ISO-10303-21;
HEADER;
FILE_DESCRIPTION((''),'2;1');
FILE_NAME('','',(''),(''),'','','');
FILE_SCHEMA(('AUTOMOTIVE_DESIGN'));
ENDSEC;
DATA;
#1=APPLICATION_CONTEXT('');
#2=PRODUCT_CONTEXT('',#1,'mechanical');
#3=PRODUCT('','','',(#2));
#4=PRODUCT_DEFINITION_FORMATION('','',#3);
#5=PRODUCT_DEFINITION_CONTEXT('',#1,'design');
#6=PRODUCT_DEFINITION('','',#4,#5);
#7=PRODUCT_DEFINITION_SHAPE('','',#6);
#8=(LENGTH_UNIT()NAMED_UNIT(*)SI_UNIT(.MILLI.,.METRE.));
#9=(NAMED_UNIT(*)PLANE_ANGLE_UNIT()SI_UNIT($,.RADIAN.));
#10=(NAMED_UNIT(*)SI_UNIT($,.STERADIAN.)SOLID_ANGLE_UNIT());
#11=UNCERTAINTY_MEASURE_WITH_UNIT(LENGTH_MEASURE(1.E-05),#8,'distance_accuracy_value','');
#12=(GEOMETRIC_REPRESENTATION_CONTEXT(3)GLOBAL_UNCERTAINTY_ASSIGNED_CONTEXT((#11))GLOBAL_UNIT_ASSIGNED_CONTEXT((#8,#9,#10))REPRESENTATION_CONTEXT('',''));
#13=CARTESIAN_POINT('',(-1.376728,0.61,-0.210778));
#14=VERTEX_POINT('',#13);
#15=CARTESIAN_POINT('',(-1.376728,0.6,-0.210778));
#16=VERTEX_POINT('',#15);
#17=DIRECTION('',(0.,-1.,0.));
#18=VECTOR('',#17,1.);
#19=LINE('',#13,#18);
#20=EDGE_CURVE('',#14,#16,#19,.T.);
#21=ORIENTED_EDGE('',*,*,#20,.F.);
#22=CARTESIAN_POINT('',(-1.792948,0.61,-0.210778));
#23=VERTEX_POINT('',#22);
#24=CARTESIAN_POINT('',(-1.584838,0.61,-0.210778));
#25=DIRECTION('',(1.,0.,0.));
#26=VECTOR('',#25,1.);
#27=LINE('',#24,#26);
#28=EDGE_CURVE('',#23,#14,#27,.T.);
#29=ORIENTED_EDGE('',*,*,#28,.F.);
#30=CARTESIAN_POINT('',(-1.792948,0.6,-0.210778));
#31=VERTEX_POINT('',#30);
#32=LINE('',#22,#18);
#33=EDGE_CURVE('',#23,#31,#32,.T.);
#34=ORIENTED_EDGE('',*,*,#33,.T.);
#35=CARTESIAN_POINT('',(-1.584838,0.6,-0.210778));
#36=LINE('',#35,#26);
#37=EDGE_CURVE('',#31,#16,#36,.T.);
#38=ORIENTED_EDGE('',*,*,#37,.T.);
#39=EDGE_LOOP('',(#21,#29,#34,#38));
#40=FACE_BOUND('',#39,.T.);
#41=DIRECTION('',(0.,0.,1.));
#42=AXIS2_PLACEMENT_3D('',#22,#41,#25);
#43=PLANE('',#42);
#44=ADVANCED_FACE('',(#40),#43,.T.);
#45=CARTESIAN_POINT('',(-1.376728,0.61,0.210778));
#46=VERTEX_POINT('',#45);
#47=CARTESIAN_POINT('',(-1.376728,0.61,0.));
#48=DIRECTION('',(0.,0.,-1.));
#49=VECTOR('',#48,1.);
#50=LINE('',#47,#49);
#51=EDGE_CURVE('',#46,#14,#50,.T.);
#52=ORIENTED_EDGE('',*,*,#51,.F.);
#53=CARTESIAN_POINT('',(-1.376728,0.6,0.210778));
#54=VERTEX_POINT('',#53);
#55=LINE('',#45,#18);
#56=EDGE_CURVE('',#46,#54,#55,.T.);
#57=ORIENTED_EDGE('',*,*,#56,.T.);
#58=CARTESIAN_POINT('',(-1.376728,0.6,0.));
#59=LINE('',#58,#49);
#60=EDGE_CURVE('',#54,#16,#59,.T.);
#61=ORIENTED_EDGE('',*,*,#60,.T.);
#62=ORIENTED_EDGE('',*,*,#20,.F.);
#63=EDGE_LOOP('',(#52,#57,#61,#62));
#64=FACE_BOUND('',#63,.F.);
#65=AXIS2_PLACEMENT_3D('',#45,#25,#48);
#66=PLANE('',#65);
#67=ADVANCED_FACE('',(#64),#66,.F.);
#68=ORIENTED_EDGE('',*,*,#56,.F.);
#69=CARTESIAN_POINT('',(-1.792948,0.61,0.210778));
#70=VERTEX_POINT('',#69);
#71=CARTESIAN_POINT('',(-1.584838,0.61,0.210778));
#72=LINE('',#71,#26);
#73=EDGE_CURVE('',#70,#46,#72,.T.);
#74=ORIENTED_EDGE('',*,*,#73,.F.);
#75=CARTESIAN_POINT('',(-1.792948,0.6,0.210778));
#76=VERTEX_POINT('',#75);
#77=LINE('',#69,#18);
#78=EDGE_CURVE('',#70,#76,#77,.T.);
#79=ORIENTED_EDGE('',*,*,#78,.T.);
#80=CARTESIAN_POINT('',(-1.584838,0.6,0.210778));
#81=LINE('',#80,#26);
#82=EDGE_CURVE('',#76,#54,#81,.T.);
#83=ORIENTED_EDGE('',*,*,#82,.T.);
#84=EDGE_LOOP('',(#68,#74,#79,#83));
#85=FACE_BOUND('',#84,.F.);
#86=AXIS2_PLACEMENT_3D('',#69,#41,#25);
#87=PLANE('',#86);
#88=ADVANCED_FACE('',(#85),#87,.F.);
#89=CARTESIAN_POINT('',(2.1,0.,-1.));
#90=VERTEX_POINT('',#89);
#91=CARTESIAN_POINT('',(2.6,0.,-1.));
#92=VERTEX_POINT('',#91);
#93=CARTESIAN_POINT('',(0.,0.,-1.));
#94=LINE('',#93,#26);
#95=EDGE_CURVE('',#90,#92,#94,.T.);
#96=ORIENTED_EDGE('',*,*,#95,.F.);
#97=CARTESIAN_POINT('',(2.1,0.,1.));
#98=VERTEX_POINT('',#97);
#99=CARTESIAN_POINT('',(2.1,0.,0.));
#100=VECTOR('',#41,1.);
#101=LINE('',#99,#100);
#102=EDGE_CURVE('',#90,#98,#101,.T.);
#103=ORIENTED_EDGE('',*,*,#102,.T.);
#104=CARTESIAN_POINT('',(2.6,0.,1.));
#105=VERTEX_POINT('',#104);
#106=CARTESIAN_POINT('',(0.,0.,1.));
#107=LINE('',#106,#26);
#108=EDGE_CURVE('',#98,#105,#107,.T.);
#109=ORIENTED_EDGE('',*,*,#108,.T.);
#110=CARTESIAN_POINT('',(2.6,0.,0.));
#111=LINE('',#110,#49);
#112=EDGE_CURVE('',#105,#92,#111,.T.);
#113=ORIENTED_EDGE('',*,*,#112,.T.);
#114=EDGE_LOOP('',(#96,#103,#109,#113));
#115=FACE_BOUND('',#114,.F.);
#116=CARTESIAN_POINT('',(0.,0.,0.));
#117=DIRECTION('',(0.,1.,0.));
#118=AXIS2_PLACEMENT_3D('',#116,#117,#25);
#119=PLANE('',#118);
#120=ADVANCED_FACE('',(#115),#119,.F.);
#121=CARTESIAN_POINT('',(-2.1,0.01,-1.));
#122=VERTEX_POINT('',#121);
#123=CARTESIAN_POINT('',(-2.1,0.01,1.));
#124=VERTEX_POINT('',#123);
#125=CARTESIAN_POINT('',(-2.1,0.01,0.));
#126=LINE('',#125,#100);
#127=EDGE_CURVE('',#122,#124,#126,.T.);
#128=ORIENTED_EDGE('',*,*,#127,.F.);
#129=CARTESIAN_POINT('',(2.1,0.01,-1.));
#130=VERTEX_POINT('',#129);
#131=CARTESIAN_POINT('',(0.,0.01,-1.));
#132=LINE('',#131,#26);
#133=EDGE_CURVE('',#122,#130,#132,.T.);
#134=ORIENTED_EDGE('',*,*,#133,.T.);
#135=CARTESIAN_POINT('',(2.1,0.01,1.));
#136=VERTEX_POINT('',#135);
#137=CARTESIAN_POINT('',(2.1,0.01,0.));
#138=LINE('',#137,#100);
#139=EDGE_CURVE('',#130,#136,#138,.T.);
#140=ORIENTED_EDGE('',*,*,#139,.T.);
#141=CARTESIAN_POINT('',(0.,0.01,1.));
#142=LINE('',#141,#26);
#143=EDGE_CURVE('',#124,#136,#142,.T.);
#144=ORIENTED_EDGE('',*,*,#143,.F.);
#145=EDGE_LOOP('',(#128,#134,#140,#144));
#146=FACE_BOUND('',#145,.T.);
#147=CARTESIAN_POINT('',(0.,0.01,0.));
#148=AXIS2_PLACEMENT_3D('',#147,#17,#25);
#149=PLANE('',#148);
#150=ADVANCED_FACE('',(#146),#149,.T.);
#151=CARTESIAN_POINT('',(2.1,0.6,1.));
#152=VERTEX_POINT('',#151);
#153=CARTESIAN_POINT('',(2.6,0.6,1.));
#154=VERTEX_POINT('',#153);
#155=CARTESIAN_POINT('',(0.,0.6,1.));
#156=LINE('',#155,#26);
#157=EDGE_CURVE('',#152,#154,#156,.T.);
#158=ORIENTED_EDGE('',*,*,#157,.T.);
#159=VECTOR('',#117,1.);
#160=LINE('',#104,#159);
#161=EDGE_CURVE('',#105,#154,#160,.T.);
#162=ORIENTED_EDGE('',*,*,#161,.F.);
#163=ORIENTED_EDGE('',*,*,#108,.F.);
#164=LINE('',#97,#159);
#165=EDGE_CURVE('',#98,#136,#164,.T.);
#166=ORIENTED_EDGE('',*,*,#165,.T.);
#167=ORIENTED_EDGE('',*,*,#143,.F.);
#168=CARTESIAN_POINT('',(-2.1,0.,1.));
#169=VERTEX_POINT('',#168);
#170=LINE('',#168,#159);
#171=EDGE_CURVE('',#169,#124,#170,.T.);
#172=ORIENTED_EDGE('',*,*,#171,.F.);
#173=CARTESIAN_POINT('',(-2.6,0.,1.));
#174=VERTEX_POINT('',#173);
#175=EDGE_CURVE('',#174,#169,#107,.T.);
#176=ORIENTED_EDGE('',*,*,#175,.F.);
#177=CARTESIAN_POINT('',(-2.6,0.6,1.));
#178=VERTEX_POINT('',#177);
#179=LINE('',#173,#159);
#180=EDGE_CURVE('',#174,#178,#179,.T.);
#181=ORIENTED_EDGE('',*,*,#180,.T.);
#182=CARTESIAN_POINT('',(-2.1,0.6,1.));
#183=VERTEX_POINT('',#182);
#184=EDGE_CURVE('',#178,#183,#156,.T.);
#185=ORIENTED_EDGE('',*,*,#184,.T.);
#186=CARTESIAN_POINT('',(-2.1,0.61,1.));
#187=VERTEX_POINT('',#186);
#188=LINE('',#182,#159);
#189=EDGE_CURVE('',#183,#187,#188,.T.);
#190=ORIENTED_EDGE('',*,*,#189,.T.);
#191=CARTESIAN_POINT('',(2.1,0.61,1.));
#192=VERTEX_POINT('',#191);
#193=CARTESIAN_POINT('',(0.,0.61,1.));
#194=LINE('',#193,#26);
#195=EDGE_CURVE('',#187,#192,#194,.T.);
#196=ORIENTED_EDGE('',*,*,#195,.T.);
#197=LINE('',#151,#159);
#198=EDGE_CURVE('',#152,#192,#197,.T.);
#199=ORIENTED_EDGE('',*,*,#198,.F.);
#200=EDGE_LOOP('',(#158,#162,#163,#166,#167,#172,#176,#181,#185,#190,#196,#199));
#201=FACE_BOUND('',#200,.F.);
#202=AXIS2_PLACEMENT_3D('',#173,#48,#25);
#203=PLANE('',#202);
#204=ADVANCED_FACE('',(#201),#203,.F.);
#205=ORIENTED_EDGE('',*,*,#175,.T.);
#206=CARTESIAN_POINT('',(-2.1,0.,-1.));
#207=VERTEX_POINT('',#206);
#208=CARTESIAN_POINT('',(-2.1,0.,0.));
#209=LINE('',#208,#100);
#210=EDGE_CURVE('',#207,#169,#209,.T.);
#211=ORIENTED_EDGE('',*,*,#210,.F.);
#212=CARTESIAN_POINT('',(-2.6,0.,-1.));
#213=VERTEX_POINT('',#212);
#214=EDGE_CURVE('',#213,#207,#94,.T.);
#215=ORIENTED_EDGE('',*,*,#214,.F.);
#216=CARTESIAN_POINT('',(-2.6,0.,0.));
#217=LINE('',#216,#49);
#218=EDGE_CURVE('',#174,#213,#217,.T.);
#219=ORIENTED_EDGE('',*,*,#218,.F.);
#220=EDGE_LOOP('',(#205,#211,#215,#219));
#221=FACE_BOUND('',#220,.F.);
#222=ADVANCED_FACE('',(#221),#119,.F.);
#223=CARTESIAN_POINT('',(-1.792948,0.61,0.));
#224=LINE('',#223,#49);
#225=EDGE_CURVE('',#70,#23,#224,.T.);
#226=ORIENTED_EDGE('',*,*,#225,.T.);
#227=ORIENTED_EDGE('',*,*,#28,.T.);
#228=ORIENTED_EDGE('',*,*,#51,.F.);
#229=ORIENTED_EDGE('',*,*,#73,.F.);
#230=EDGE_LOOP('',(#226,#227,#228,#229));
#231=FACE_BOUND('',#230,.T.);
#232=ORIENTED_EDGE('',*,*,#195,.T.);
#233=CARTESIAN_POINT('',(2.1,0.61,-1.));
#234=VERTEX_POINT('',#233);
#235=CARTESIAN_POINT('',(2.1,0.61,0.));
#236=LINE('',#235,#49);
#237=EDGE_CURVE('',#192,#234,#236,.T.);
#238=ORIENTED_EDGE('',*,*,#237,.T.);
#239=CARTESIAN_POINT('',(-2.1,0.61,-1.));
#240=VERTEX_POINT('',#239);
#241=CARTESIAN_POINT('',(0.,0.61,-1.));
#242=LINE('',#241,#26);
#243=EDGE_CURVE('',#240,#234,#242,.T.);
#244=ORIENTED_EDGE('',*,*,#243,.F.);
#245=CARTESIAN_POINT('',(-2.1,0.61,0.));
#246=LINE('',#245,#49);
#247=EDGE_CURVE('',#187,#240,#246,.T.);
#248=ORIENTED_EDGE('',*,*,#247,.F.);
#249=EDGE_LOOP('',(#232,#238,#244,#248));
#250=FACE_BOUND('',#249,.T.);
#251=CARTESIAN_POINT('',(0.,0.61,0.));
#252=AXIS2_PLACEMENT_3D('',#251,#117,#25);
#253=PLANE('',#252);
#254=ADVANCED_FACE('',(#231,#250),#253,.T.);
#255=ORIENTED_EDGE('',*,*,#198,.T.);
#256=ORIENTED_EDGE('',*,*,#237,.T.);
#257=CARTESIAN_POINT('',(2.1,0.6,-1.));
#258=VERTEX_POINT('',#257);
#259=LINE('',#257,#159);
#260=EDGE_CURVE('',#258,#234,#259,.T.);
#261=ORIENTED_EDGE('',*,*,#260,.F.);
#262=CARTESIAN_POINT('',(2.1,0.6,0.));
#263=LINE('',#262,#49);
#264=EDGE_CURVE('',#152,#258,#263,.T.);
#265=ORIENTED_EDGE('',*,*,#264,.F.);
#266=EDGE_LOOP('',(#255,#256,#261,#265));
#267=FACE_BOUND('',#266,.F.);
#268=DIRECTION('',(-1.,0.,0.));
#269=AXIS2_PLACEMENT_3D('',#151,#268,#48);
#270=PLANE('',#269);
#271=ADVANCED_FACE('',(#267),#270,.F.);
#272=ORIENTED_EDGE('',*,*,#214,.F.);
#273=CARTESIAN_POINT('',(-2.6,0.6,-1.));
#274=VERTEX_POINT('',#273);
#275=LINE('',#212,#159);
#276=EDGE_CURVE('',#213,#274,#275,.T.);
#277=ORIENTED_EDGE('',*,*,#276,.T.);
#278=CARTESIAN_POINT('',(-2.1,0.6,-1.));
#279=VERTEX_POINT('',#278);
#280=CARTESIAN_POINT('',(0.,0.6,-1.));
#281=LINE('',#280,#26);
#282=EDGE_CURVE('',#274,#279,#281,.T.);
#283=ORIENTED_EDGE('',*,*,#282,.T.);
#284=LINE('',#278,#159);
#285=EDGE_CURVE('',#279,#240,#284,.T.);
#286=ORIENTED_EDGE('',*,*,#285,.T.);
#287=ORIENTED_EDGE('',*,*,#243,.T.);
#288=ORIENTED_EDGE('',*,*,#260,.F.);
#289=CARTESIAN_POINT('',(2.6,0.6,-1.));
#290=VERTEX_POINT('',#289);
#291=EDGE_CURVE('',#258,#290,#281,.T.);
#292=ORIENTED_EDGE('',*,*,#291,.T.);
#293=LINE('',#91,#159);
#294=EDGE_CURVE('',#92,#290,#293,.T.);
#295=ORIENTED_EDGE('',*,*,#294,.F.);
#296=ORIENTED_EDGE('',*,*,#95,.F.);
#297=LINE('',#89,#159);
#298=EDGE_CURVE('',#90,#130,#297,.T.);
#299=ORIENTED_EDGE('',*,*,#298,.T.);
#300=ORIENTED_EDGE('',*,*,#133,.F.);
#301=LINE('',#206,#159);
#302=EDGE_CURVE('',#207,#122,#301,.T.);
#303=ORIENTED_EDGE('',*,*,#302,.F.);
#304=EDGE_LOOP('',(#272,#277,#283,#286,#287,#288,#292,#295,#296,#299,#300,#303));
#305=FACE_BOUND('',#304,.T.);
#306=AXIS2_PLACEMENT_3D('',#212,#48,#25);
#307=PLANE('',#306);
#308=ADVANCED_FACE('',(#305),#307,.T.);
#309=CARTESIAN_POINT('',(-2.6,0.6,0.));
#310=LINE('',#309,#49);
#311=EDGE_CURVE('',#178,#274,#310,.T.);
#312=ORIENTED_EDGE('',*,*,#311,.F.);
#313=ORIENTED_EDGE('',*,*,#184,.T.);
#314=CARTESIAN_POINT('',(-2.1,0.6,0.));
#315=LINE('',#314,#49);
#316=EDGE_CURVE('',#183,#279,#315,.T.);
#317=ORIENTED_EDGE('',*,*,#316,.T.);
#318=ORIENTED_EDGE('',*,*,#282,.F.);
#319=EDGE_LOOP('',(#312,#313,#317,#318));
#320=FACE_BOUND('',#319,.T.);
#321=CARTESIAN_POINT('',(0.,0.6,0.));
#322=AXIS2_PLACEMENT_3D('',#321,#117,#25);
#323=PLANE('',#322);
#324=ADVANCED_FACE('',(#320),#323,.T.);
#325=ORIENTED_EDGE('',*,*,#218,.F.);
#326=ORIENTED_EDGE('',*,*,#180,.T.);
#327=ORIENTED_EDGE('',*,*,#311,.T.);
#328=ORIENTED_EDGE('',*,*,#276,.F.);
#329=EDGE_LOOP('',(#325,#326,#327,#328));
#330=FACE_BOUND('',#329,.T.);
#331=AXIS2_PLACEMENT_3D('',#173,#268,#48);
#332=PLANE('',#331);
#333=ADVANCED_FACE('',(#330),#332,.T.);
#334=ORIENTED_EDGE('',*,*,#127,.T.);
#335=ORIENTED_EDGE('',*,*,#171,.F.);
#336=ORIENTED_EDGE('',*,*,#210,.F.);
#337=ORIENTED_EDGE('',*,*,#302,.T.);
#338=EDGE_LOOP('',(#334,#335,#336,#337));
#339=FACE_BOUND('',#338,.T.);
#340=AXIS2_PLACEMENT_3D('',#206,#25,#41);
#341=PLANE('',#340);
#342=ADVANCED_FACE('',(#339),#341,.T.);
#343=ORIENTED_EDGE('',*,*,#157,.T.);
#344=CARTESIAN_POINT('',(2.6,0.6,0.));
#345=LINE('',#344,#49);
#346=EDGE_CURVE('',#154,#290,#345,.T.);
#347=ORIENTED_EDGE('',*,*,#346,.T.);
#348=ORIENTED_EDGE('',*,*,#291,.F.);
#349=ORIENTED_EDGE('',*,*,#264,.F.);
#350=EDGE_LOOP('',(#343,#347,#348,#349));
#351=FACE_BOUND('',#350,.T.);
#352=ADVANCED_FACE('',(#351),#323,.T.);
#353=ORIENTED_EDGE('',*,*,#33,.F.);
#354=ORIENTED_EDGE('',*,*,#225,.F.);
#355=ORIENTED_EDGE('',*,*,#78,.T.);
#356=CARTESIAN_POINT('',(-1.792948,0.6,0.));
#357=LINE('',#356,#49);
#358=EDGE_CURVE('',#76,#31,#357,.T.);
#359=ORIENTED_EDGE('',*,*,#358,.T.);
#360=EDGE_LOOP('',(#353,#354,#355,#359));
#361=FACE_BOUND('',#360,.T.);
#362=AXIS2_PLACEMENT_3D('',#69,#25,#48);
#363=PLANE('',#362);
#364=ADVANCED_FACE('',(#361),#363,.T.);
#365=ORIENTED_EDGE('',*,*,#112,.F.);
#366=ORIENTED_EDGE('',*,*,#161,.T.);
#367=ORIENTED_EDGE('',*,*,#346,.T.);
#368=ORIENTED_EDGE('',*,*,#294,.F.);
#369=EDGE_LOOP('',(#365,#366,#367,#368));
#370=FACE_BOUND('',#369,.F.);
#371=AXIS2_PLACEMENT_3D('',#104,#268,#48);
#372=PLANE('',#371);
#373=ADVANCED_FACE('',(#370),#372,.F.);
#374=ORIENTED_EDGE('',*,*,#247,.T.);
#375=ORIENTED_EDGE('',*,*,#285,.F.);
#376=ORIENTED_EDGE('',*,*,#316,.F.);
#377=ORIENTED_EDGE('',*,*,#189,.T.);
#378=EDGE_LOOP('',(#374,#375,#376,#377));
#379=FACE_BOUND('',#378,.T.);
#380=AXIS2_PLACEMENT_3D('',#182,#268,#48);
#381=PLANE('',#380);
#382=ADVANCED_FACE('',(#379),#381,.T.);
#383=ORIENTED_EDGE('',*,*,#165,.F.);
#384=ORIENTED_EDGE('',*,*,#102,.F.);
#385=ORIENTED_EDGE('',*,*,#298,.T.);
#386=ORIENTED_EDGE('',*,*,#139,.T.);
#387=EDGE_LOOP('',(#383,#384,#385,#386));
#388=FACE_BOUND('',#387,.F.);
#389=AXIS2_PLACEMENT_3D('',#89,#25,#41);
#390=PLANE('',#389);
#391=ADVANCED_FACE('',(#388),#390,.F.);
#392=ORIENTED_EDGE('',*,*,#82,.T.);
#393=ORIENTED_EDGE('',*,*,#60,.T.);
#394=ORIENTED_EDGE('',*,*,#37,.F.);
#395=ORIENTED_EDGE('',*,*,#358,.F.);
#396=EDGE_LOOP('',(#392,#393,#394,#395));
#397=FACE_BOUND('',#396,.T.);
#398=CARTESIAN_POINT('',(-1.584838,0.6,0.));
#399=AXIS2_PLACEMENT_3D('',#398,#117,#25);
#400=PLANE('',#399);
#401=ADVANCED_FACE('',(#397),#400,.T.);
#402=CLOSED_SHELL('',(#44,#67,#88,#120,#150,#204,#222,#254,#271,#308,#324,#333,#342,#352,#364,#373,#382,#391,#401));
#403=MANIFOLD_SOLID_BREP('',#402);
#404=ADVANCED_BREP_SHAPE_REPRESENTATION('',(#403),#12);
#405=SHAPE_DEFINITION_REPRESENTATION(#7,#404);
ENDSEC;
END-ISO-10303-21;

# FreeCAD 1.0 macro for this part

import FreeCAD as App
import Part
import Sketcher
Q = App.Units.Quantity

doc = App.newDocument("Part")
body = doc.addObject("PartDesign::Body", "Body")

# Sketch on XZ plane
sketch1 = body.newObject("Sketcher::SketchObject", "Sketch")
sketch1.AttachmentSupport = (doc.getObject("XZ_Plane"), [""])
sketch1.MapMode = "FlatFace"
sketch1.addGeometry([
    Part.LineSegment(App.Vector(-2.6, -1, 0), App.Vector(-2.6, 1, 0)),
    Part.LineSegment(App.Vector(-2.6, 1, 0), App.Vector(2.6, 1, 0)),
    Part.LineSegment(App.Vector(2.6, 1, 0), App.Vector(2.6, -1, 0)),
    Part.LineSegment(App.Vector(2.6, -1, 0), App.Vector(-2.6, -1, 0)),
], False)
sketch1.addConstraint([
    Sketcher.Constraint("Coincident", 0, 2, 1, 1),
    Sketcher.Constraint("Coincident", 1, 2, 2, 1),
    Sketcher.Constraint("Coincident", 2, 2, 3, 1),
    Sketcher.Constraint("Coincident", 3, 2, 0, 1),
    Sketcher.Constraint("Vertical", 0),
    Sketcher.Constraint("Horizontal", 1),
    Sketcher.Constraint("Vertical", 2),
    Sketcher.Constraint("Horizontal", 3),
    Sketcher.Constraint("Symmetric", 0, 2, 2, 2, -1, 1),
    Sketcher.Constraint("DistanceY", 0, 1, 0, 2, Q("2 mm")),
    Sketcher.Constraint("DistanceX", 1, 1, 1, 2, Q("5.2 mm")),
])
pad1 = body.newObject("PartDesign::Pad", "Pad")
pad1.Profile = sketch1
pad1.Length = 0.6
pad1.Reversed = True

# Sketch on XZ plane
sketch2 = body.newObject("Sketcher::SketchObject", "Sketch001")
sketch2.AttachmentSupport = (doc.getObject("XZ_Plane"), [""])
sketch2.MapMode = "FlatFace"
sketch2.AttachmentOffset = App.Placement(App.Vector(0, 0, -0.6), App.Rotation())
sketch2.addGeometry([
    Part.LineSegment(App.Vector(-2.1, -1, 0), App.Vector(-2.1, 1, 0)),
    Part.LineSegment(App.Vector(-2.1, 1, 0), App.Vector(2.1, 1, 0)),
    Part.LineSegment(App.Vector(2.1, 1, 0), App.Vector(2.1, -1, 0)),
    Part.LineSegment(App.Vector(2.1, -1, 0), App.Vector(-2.1, -1, 0)),
], False)
sketch2.addConstraint([
    Sketcher.Constraint("Coincident", 0, 2, 1, 1),
    Sketcher.Constraint("Coincident", 1, 2, 2, 1),
    Sketcher.Constraint("Coincident", 2, 2, 3, 1),
    Sketcher.Constraint("Coincident", 3, 2, 0, 1),
    Sketcher.Constraint("Vertical", 0),
    Sketcher.Constraint("Horizontal", 1),
    Sketcher.Constraint("Vertical", 2),
    Sketcher.Constraint("Horizontal", 3),
    Sketcher.Constraint("Symmetric", 0, 2, 2, 2, -1, 1),
    Sketcher.Constraint("DistanceY", 0, 1, 0, 2, Q("2 mm")),
    Sketcher.Constraint("DistanceX", 1, 1, 1, 2, Q("4.2 mm")),
])
pad2 = body.newObject("PartDesign::Pad", "Pad001")
pad2.Profile = sketch2
pad2.Length = 0.01
pad2.Reversed = True

# Sketch on XZ plane
sketch3 = body.newObject("Sketcher::SketchObject", "Sketch002")
sketch3.AttachmentSupport = (doc.getObject("XZ_Plane"), [""])
sketch3.MapMode = "FlatFace"
sketch3.AttachmentOffset = App.Placement(App.Vector(0, 0, -0.61), App.Rotation())
sketch3.addGeometry([
    Part.LineSegment(App.Vector(-1.79, -0.21, 0), App.Vector(-1.79, 0.21, 0)),
    Part.LineSegment(App.Vector(-1.79, 0.21, 0), App.Vector(-1.38, 0.21, 0)),
    Part.LineSegment(App.Vector(-1.38, 0.21, 0), App.Vector(-1.38, -0.21, 0)),
    Part.LineSegment(App.Vector(-1.38, -0.21, 0), App.Vector(-1.79, -0.21, 0)),
], False)
sketch3.addConstraint([
    Sketcher.Constraint("Coincident", 0, 2, 1, 1),
    Sketcher.Constraint("Coincident", 1, 2, 2, 1),
    Sketcher.Constraint("Coincident", 2, 2, 3, 1),
    Sketcher.Constraint("Coincident", 3, 2, 0, 1),
    Sketcher.Constraint("Vertical", 0),
    Sketcher.Constraint("Horizontal", 1),
    Sketcher.Constraint("Vertical", 2),
    Sketcher.Constraint("Horizontal", 3),
    Sketcher.Constraint("DistanceX", 1, 1, 1, 2, Q("0.41622 mm")),
    Sketcher.Constraint("DistanceY", 0, 1, 0, 2, Q("0.421556 mm")),
    Sketcher.Constraint("DistanceY", -1, 1, 0, 2, Q("0.210778 mm")),
    Sketcher.Constraint("DistanceX", 0, 2, -1, 1, Q("1.792948 mm")),
])
pocket1 = body.newObject("PartDesign::Pocket", "Pocket")
pocket1.Profile = sketch3
pocket1.Length = 0.01
pocket1.Reversed = True

# Sketch on XZ plane
sketch4 = body.newObject("Sketcher::SketchObject", "Sketch003")
sketch4.AttachmentSupport = (doc.getObject("XZ_Plane"), [""])
sketch4.MapMode = "FlatFace"
sketch4.addGeometry([
    Part.LineSegment(App.Vector(-2.1, 1, 0), App.Vector(-2.1, -1, 0)),
    Part.LineSegment(App.Vector(-2.1, -1, 0), App.Vector(2.1, -1, 0)),
    Part.LineSegment(App.Vector(2.1, -1, 0), App.Vector(2.1, 1, 0)),
    Part.LineSegment(App.Vector(2.1, 1, 0), App.Vector(-2.1, 1, 0)),
], False)
sketch4.addConstraint([
    Sketcher.Constraint("Coincident", 0, 2, 1, 1),
    Sketcher.Constraint("Coincident", 1, 2, 2, 1),
    Sketcher.Constraint("Coincident", 2, 2, 3, 1),
    Sketcher.Constraint("Coincident", 3, 2, 0, 1),
    Sketcher.Constraint("Vertical", 0),
    Sketcher.Constraint("Horizontal", 1),
    Sketcher.Constraint("Vertical", 2),
    Sketcher.Constraint("Horizontal", 3),
    Sketcher.Constraint("Symmetric", 0, 2, 2, 2, -1, 1),
    Sketcher.Constraint("DistanceY", 0, 2, 0, 1, Q("2 mm")),
    Sketcher.Constraint("DistanceX", 1, 1, 1, 2, Q("4.2 mm")),
])
pocket2 = body.newObject("PartDesign::Pocket", "Pocket001")
pocket2.Profile = sketch4
pocket2.Length = 0.01

doc.recompute()
